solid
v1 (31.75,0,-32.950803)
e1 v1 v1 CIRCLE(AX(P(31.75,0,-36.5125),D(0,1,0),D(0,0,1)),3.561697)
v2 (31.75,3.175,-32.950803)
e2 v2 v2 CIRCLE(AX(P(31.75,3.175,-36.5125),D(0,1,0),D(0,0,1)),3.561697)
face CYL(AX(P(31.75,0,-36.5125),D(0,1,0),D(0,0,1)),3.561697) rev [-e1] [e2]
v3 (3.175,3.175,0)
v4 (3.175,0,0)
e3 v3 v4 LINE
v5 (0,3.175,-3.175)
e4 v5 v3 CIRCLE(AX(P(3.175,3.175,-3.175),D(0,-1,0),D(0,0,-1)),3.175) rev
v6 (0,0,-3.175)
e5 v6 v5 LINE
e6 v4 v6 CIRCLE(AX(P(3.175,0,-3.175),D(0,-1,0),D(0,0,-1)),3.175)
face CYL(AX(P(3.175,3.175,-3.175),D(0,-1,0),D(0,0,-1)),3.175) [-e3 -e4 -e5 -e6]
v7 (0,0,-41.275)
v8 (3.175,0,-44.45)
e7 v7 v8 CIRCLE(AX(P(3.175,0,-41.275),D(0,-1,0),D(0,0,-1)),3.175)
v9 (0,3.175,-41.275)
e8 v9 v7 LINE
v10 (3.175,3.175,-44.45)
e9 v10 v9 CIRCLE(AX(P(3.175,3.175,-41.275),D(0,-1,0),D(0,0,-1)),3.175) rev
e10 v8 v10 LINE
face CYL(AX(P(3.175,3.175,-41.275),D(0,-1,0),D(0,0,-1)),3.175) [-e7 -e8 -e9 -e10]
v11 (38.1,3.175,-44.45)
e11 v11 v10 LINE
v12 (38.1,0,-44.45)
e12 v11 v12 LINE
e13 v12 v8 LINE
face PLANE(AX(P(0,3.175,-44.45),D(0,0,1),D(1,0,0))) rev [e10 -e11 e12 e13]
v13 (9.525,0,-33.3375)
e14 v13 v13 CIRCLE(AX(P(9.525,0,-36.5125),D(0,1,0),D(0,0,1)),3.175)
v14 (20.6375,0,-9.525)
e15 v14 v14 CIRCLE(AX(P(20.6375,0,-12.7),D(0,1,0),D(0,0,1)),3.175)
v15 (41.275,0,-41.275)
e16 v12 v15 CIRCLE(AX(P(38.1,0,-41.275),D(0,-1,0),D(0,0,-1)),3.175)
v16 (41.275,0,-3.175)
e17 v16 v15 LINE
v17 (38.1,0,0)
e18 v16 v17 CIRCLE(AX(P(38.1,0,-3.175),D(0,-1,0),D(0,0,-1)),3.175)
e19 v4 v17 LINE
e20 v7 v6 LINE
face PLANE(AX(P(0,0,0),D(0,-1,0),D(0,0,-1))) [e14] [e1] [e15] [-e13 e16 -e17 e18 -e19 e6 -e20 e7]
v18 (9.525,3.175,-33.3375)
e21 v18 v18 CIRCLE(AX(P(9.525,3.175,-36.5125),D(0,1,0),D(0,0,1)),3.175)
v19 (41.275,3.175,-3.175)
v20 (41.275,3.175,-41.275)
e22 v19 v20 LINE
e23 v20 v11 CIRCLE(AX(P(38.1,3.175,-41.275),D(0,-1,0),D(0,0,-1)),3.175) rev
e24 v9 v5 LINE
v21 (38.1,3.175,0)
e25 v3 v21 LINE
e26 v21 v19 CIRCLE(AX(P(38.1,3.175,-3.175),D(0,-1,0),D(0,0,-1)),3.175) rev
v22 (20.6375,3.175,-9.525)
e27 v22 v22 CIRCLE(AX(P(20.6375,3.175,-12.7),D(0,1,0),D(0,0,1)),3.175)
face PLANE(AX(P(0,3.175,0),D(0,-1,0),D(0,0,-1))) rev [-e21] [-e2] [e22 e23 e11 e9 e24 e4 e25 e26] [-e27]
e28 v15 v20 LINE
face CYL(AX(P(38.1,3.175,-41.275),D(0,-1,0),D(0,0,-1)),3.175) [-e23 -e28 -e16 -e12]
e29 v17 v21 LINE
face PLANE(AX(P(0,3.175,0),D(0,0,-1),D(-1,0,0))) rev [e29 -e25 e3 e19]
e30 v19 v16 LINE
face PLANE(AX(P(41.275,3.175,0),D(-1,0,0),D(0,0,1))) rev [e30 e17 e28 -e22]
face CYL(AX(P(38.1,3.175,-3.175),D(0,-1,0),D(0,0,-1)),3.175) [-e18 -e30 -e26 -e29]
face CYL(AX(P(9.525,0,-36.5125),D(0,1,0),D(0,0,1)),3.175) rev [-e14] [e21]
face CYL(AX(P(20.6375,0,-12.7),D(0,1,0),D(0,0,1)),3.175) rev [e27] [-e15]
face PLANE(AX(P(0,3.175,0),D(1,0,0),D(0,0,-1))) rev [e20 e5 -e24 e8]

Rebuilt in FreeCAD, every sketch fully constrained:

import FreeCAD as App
import Part
import Sketcher
Q = App.Units.Quantity


def edges_at(feature, points):
    """Names of the edges that pass closest to the given points."""
    edges = feature.Shape.Edges
    near = lambda p: min(range(len(edges)), key=lambda i: edges[i].distToShape(Part.Vertex(*p))[0])
    return sorted({f"Edge{near(p) + 1}" for p in points})


def add_polygon(sketch, points):
    """Adds a closed chain of lines whose ends are joined by coincident constraints."""
    first, n = sketch.GeometryCount, len(points)
    for a, b in zip(points, points[1:] + points[:1]):
        sketch.addGeometry(Part.LineSegment(App.Vector(*a, 0), App.Vector(*b, 0)), False)
    for i in range(n):
        sketch.addConstraint(Sketcher.Constraint("Coincident", first + i, 2, first + (i + 1) % n, 1))

doc = App.newDocument("Part")
body = doc.addObject("PartDesign::Body", "Body")

sketch1 = body.newObject("Sketcher::SketchObject", "Sketch")
sketch1.AttachmentSupport = (doc.getObject("XZ_Plane"), [""])
sketch1.MapMode = "FlatFace"
add_polygon(sketch1, [(0, -44.45), (0, 0), (41.275, 0), (41.275, -44.45)])
sketch1.addConstraint(Sketcher.Constraint("Vertical", 0))
sketch1.addConstraint(Sketcher.Constraint("Horizontal", 1))
sketch1.addConstraint(Sketcher.Constraint("Vertical", 2))
sketch1.addConstraint(Sketcher.Constraint("Horizontal", 3))
sketch1.addConstraint(Sketcher.Constraint("Coincident", 0, 2, -1, 1))
sketch1.addConstraint(Sketcher.Constraint("DistanceY", 0, 1, 0, 2, Q("1.75 in")))
sketch1.addConstraint(Sketcher.Constraint("DistanceX", 1, 1, 1, 2, Q("1.625 in")))
pad1 = body.newObject("PartDesign::Pad", "Pad")
pad1.Profile = sketch1
pad1.Length = Q("0.125 in")
pad1.Reversed = True
doc.recompute()

fillet = body.newObject("PartDesign::Fillet", "Fillet")
fillet.Base = (pad1, edges_at(pad1, [
    (0, 1.587, -44.45),
    (41.275, 1.587, -44.45),
    (41.275, 1.587, 0),
    (0, 1.587, 0),
]))
fillet.Radius = Q("0.125 in")

sketch2 = body.newObject("Sketcher::SketchObject", "Sketch001")
sketch2.AttachmentSupport = (doc.getObject("XZ_Plane"), [""])
sketch2.MapMode = "FlatFace"
sketch2.AttachmentOffset = App.Placement(App.Vector(0, 0, -0.125 * 25.4), App.Rotation())
sketch2.addGeometry(Part.Circle(App.Vector(9.525, -36.5125, 0), App.Vector(0, 0, 1), 3.175), False)
sketch2.addGeometry(Part.Circle(App.Vector(31.75, -36.5125, 0), App.Vector(0, 0, 1), 3.561697), False)
sketch2.addGeometry(Part.Circle(App.Vector(20.6375, -12.7, 0), App.Vector(0, 0, 1), 3.175), False)
sketch2.addConstraint(Sketcher.Constraint("Equal", 0, 2))
sketch2.addConstraint(Sketcher.Constraint("Horizontal", 0, 3, 1, 3))
sketch2.addConstraint(Sketcher.Constraint("Diameter", 0, Q("0.25 in")))
sketch2.addConstraint(Sketcher.Constraint("DistanceY", 2, 3, -1, 1, Q("0.5 in")))
sketch2.addConstraint(Sketcher.Constraint("DistanceX", -1, 1, 1, 3, Q("1.25 in")))
sketch2.addConstraint(Sketcher.Constraint("DistanceX", -1, 1, 0, 3, Q("0.375 in")))
sketch2.addConstraint(Sketcher.Constraint("DistanceY", 0, 3, -1, 1, Q("1.4375 in")))
sketch2.addConstraint(Sketcher.Constraint("DistanceX", -1, 1, 2, 3, Q("0.8125 in")))
sketch2.addConstraint(Sketcher.Constraint("Diameter", 1, Q("7.123393 mm")))
pocket1 = body.newObject("PartDesign::Pocket", "Pocket")
pocket1.Profile = sketch2
pocket1.Type = "ThroughAll"
pocket1.Reversed = True

doc.recompute()
